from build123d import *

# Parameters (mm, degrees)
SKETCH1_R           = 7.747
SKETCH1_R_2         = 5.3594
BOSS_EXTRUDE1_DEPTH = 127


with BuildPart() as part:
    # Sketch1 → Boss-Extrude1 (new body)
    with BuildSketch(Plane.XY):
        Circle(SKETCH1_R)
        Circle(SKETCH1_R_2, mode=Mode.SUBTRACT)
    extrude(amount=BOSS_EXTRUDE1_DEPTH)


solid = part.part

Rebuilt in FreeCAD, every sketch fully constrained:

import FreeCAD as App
import Part
import Sketcher
Q = App.Units.Quantity

doc = App.newDocument("Part")
body = doc.addObject("PartDesign::Body", "Body")

sketch1 = doc.addObject("Sketcher::SketchObject", "Sketch")
body.addObject(sketch1)
sketch1.AttachmentSupport = (doc.XY_Plane, [""])
sketch1.MapMode = "FlatFace"
sketch1.addGeometry([
    Part.Circle(App.Vector(0, 0, 0), App.Vector(0, 0, 1), 8),
    Part.Circle(App.Vector(0, 0, 0), App.Vector(0, 0, 1), 5),
], False)
sketch1.addConstraint([
    Sketcher.Constraint("Coincident", 0, 3, -1, 1),
    Sketcher.Constraint("Coincident", 1, 3, -1, 1),
    Sketcher.Constraint("Diameter", 0, Q("0.61 in")),
    Sketcher.Constraint("Diameter", 1, Q("0.422 in")),
])
pad1 = doc.addObject("PartDesign::Pad", "Pad")
body.addObject(pad1)
pad1.Profile = sketch1
pad1.Length = Q("5 in")

doc.recompute()
